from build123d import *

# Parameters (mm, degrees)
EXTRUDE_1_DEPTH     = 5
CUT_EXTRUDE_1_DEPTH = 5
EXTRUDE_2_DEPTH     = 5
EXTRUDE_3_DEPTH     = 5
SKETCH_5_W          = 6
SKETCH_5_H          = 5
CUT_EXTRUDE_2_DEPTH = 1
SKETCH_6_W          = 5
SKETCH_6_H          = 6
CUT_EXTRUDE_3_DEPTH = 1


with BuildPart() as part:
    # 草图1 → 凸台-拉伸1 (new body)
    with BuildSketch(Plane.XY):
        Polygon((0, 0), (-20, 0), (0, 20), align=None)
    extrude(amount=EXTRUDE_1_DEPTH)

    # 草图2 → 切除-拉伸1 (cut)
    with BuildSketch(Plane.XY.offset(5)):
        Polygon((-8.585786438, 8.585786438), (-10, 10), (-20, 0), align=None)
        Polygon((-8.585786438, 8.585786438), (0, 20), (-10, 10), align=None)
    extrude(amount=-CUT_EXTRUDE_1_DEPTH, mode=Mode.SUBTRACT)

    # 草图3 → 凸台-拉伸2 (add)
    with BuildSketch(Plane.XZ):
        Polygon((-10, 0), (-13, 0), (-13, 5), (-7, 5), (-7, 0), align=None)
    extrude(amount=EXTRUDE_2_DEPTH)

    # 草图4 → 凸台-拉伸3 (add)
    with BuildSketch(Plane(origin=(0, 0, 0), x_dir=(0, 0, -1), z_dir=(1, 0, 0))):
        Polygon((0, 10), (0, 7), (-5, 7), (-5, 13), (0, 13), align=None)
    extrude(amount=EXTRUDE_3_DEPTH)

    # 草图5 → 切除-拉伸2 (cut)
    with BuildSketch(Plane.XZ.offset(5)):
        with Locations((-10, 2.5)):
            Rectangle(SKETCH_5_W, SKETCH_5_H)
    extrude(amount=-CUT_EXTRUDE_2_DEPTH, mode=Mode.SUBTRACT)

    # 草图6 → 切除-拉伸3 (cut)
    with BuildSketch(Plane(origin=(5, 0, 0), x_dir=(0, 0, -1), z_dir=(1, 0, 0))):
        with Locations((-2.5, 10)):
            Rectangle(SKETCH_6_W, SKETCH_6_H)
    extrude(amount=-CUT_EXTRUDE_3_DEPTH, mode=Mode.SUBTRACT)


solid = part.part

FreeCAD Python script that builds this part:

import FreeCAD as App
import Part
import Sketcher
from FreeCAD import Vector
Q = App.Units.Quantity

doc = App.newDocument("Part")
body = doc.addObject("PartDesign::Body", "Body")

# Sketch on XY plane
sketch1 = body.newObject("Sketcher::SketchObject", "Sketch")
sketch1.AttachmentSupport = (doc.getObject("XY_Plane"), [""])
sketch1.MapMode = "FlatFace"
sketch1.addGeometry([
    Part.LineSegment(Vector(-20, 0, 0), Vector(0, 0, 0)),
    Part.LineSegment(Vector(0, 0, 0), Vector(0, 20, 0)),
    Part.LineSegment(Vector(0, 20, 0), Vector(-20, 0, 0)),
], False)
sketch1.addConstraint([
    Sketcher.Constraint("Coincident", 0, 2, 1, 1),
    Sketcher.Constraint("Coincident", 1, 2, 2, 1),
    Sketcher.Constraint("Coincident", 2, 2, 0, 1),
    Sketcher.Constraint("Horizontal", 0),
    Sketcher.Constraint("Vertical", 1),
    Sketcher.Constraint("Coincident", 0, 2, -1, 1),
    Sketcher.Constraint("Equal", 0, 1),
    Sketcher.Constraint("DistanceX", 0, 1, 0, 2, Q("20 mm")),
])
pad1 = body.newObject("PartDesign::Pad", "Pad")
pad1.Profile = sketch1
pad1.Length = 5

# Sketch on XY plane
sketch2 = body.newObject("Sketcher::SketchObject", "Sketch001")
sketch2.AttachmentSupport = (doc.getObject("XY_Plane"), [""])
sketch2.MapMode = "FlatFace"
sketch2.AttachmentOffset = App.Placement(Vector(0, 0, 5), App.Rotation())
sketch2.addGeometry([
    Part.LineSegment(Vector(-20, 0, 0), Vector(-8.585786, 8.585786, 0)),
    Part.LineSegment(Vector(-8.585786, 8.585786, 0), Vector(0, 20, 0)),
    Part.LineSegment(Vector(0, 20, 0), Vector(-20, 0, 0)),
], False)
sketch2.addConstraint([
    Sketcher.Constraint("Coincident", 0, 2, 1, 1),
    Sketcher.Constraint("Coincident", 1, 2, 2, 1),
    Sketcher.Constraint("Coincident", 2, 2, 0, 1),
    Sketcher.Constraint("PointOnObject", 1, 2, -2),
    Sketcher.Constraint("PointOnObject", 2, 2, -1),
    Sketcher.Constraint("Equal", 0, 1),
    Sketcher.Constraint("Angle", 2, Q("-135 deg")),
    Sketcher.Constraint("DistanceY", -1, 1, 1, 2, Q("20 mm")),
    Sketcher.Constraint("Distance", 0, Q("14.282857 mm")),
])
pocket1 = body.newObject("PartDesign::Pocket", "Pocket")
pocket1.Profile = sketch2
pocket1.Length = 5

# Sketch on XZ plane
sketch3 = body.newObject("Sketcher::SketchObject", "Sketch002")
sketch3.AttachmentSupport = (doc.getObject("XZ_Plane"), [""])
sketch3.MapMode = "FlatFace"
sketch3.addGeometry([
    Part.LineSegment(Vector(-13, 0, 0), Vector(-7, 0, 0)),
    Part.LineSegment(Vector(-7, 0, 0), Vector(-7, 5, 0)),
    Part.LineSegment(Vector(-7, 5, 0), Vector(-13, 5, 0)),
    Part.LineSegment(Vector(-13, 5, 0), Vector(-13, 0, 0)),
], False)
sketch3.addConstraint([
    Sketcher.Constraint("Coincident", 0, 2, 1, 1),
    Sketcher.Constraint("Coincident", 1, 2, 2, 1),
    Sketcher.Constraint("Coincident", 2, 2, 3, 1),
    Sketcher.Constraint("Coincident", 3, 2, 0, 1),
    Sketcher.Constraint("Horizontal", 0),
    Sketcher.Constraint("Vertical", 1),
    Sketcher.Constraint("Horizontal", 2),
    Sketcher.Constraint("Vertical", 3),
    Sketcher.Constraint("PointOnObject", 0, 2, -1),
    Sketcher.Constraint("DistanceX", 0, 1, 0, 2, Q("6 mm")),
    Sketcher.Constraint("DistanceY", 1, 1, 1, 2, Q("5 mm")),
    Sketcher.Constraint("DistanceX", 0, 2, -1, 1, Q("7 mm")),
])
pad2 = body.newObject("PartDesign::Pad", "Pad001")
pad2.Profile = sketch3
pad2.Length = 5

# Sketch on YZ plane
sketch4 = body.newObject("Sketcher::SketchObject", "Sketch003")
sketch4.AttachmentSupport = (doc.getObject("YZ_Plane"), [""])
sketch4.MapMode = "FlatFace"
sketch4.addGeometry([
    Part.LineSegment(Vector(7, 0, 0), Vector(13, 0, 0)),
    Part.LineSegment(Vector(13, 0, 0), Vector(13, 5, 0)),
    Part.LineSegment(Vector(13, 5, 0), Vector(7, 5, 0)),
    Part.LineSegment(Vector(7, 5, 0), Vector(7, 0, 0)),
], False)
sketch4.addConstraint([
    Sketcher.Constraint("Coincident", 0, 2, 1, 1),
    Sketcher.Constraint("Coincident", 1, 2, 2, 1),
    Sketcher.Constraint("Coincident", 2, 2, 3, 1),
    Sketcher.Constraint("Coincident", 3, 2, 0, 1),
    Sketcher.Constraint("Horizontal", 0),
    Sketcher.Constraint("Vertical", 1),
    Sketcher.Constraint("Horizontal", 2),
    Sketcher.Constraint("Vertical", 3),
    Sketcher.Constraint("PointOnObject", 0, 2, -1),
    Sketcher.Constraint("DistanceX", 0, 1, 0, 2, Q("6 mm")),
    Sketcher.Constraint("DistanceY", 1, 1, 1, 2, Q("5 mm")),
    Sketcher.Constraint("DistanceX", -1, 1, 0, 2, Q("13 mm")),
])
pad3 = body.newObject("PartDesign::Pad", "Pad002")
pad3.Profile = sketch4
pad3.Length = 5

# Sketch on XZ plane
sketch5 = body.newObject("Sketcher::SketchObject", "Sketch004")
sketch5.AttachmentSupport = (doc.getObject("XZ_Plane"), [""])
sketch5.MapMode = "FlatFace"
sketch5.AttachmentOffset = App.Placement(Vector(0, 0, 5), App.Rotation())
sketch5.addGeometry([
    Part.LineSegment(Vector(-13, 5, 0), Vector(-13, 0, 0)),
    Part.LineSegment(Vector(-13, 0, 0), Vector(-7, 0, 0)),
    Part.LineSegment(Vector(-7, 0, 0), Vector(-7, 5, 0)),
    Part.LineSegment(Vector(-7, 5, 0), Vector(-13, 5, 0)),
], False)
sketch5.addConstraint([
    Sketcher.Constraint("Coincident", 0, 2, 1, 1),
    Sketcher.Constraint("Coincident", 1, 2, 2, 1),
    Sketcher.Constraint("Coincident", 2, 2, 3, 1),
    Sketcher.Constraint("Coincident", 3, 2, 0, 1),
    Sketcher.Constraint("Vertical", 0),
    Sketcher.Constraint("Horizontal", 1),
    Sketcher.Constraint("Vertical", 2),
    Sketcher.Constraint("Horizontal", 3),
    Sketcher.Constraint("PointOnObject", 0, 2, -1),
    Sketcher.Constraint("DistanceX", 1, 1, 1, 2, Q("6 mm")),
    Sketcher.Constraint("DistanceY", 0, 2, 0, 1, Q("5 mm")),
    Sketcher.Constraint("DistanceX", 0, 2, -1, 1, Q("13 mm")),
])
pocket2 = body.newObject("PartDesign::Pocket", "Pocket001")
pocket2.Profile = sketch5
pocket2.Length = 1

# Sketch on YZ plane
sketch6 = body.newObject("Sketcher::SketchObject", "Sketch005")
sketch6.AttachmentSupport = (doc.getObject("YZ_Plane"), [""])
sketch6.MapMode = "FlatFace"
sketch6.AttachmentOffset = App.Placement(Vector(0, 0, 5), App.Rotation())
sketch6.addGeometry([
    Part.LineSegment(Vector(13, 5, 0), Vector(7, 5, 0)),
    Part.LineSegment(Vector(7, 5, 0), Vector(7, 0, 0)),
    Part.LineSegment(Vector(7, 0, 0), Vector(13, 0, 0)),
    Part.LineSegment(Vector(13, 0, 0), Vector(13, 5, 0)),
], False)
sketch6.addConstraint([
    Sketcher.Constraint("Coincident", 0, 2, 1, 1),
    Sketcher.Constraint("Coincident", 1, 2, 2, 1),
    Sketcher.Constraint("Coincident", 2, 2, 3, 1),
    Sketcher.Constraint("Coincident", 3, 2, 0, 1),
    Sketcher.Constraint("Horizontal", 0),
    Sketcher.Constraint("Vertical", 1),
    Sketcher.Constraint("Horizontal", 2),
    Sketcher.Constraint("Vertical", 3),
    Sketcher.Constraint("PointOnObject", 1, 2, -1),
    Sketcher.Constraint("DistanceX", 0, 2, 0, 1, Q("6 mm")),
    Sketcher.Constraint("DistanceY", 1, 2, 1, 1, Q("5 mm")),
    Sketcher.Constraint("DistanceX", -1, 1, 0, 2, Q("7 mm")),
])
pocket3 = body.newObject("PartDesign::Pocket", "Pocket002")
pocket3.Profile = sketch6
pocket3.Length = 1

doc.recompute()
